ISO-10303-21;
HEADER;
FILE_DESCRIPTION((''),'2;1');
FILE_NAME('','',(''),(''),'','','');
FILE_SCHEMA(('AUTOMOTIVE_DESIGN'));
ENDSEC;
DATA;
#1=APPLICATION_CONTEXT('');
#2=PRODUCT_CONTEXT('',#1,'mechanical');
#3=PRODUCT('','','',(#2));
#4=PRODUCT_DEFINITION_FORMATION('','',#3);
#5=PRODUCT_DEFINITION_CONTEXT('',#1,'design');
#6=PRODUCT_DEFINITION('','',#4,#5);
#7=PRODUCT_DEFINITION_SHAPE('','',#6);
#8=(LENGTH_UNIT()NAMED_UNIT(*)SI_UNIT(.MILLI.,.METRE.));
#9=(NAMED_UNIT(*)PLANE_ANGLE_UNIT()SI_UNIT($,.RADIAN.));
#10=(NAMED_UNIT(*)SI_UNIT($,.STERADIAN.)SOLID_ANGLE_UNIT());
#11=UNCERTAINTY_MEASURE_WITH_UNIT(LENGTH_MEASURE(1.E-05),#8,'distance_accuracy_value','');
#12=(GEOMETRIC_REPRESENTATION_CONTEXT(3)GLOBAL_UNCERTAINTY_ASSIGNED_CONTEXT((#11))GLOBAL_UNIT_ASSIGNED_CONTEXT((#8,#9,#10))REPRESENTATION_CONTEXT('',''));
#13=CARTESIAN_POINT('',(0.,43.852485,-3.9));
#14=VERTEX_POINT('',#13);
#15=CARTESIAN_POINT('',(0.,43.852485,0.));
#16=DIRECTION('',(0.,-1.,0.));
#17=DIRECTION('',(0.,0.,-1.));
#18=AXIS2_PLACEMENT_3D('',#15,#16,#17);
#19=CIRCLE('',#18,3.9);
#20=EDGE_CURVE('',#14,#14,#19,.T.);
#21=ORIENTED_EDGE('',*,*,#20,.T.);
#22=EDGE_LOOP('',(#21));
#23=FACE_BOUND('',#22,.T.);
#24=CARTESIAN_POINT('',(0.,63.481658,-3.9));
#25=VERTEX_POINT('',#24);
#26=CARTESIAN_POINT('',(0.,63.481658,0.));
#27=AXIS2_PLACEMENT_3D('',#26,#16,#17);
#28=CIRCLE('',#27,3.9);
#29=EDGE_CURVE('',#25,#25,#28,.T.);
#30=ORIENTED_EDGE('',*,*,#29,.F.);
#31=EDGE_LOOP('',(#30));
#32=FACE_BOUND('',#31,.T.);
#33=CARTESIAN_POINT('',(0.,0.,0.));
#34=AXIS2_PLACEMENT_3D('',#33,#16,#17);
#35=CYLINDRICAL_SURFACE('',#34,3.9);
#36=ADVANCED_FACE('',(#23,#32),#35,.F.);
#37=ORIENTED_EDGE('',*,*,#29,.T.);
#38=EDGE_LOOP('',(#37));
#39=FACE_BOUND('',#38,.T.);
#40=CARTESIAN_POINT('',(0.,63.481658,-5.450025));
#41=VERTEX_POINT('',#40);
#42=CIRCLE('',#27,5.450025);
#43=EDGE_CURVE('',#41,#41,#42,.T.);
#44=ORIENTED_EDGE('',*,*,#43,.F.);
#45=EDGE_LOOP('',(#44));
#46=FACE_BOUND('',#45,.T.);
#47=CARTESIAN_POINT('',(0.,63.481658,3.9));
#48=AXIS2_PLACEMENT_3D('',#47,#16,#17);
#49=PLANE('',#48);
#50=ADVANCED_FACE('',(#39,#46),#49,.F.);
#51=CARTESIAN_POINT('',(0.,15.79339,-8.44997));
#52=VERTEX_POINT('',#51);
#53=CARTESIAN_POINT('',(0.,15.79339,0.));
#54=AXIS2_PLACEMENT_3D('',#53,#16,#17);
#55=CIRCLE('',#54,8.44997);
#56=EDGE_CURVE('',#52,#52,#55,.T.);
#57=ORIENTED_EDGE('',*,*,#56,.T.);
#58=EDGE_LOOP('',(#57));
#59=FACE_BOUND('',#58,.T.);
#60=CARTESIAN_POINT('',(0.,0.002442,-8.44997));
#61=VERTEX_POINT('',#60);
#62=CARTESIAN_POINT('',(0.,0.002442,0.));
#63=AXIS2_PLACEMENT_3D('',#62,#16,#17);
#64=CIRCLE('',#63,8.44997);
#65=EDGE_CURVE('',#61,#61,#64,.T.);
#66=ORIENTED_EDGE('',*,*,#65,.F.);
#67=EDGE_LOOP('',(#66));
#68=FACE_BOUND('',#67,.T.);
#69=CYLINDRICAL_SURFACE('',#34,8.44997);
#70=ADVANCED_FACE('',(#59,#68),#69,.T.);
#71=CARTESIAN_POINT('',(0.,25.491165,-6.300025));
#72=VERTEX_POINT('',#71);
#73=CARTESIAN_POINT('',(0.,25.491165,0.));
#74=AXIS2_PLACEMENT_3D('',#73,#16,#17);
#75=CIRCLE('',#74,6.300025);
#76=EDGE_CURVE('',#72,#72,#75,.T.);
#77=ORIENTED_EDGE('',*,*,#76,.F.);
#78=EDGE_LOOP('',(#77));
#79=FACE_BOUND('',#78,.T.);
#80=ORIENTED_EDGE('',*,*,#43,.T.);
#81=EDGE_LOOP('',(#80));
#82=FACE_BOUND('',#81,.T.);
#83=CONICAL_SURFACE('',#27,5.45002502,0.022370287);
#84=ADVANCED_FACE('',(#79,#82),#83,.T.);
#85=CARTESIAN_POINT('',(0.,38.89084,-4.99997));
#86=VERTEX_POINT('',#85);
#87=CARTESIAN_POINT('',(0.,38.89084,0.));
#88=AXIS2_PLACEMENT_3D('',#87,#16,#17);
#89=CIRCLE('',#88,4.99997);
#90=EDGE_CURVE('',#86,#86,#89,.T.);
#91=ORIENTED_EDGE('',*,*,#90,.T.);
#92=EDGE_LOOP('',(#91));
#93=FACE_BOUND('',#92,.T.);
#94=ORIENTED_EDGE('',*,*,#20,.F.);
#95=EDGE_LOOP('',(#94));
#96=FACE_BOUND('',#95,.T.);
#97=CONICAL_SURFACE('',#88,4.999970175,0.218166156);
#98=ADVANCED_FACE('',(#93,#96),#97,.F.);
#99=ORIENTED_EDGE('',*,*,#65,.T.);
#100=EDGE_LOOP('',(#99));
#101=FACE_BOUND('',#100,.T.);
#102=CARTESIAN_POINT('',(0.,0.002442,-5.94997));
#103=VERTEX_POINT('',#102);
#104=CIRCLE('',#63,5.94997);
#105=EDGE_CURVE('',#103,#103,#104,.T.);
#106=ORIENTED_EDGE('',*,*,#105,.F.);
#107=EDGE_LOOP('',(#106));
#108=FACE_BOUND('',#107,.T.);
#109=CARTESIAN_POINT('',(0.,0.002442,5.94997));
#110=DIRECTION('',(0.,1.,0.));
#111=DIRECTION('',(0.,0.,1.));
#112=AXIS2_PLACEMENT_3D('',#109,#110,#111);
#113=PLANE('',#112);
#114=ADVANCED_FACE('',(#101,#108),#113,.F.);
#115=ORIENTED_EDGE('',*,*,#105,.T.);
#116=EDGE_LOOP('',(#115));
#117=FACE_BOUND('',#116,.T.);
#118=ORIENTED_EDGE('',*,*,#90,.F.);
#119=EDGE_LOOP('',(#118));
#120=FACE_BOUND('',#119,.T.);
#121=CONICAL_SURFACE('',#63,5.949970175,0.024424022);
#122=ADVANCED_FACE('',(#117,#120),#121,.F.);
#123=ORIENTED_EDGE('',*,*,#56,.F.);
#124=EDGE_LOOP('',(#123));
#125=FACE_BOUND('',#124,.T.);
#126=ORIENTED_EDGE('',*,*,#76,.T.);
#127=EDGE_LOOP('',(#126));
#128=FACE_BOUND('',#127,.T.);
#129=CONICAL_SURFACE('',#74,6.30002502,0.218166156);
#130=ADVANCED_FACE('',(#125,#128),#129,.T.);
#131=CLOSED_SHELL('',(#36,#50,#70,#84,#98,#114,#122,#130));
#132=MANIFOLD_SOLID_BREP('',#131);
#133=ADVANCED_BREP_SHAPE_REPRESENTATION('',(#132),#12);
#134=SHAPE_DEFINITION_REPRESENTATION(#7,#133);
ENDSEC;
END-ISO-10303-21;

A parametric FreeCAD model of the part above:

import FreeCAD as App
import Part
import Sketcher
Q = App.Units.Quantity


def add_polygon(sketch, points):
    """Adds a closed chain of lines whose ends are joined by coincident constraints."""
    first, n = sketch.GeometryCount, len(points)
    for a, b in zip(points, points[1:] + points[:1]):
        sketch.addGeometry(Part.LineSegment(App.Vector(*a, 0), App.Vector(*b, 0)), False)
    for i in range(n):
        sketch.addConstraint(Sketcher.Constraint("Coincident", first + i, 2, first + (i + 1) % n, 1))

doc = App.newDocument("Part")
body = doc.addObject("PartDesign::Body", "Body")

# Sketch on YZ plane
sketch1 = body.newObject("Sketcher::SketchObject", "Sketch")
sketch1.AttachmentSupport = (doc.getObject("YZ_Plane"), [""])
sketch1.MapMode = "FlatFace"
add_polygon(sketch1, [(0, 5.9), (38.9, 5), (43.9, 3.9), (63.5, 3.9), (63.5, 5.5), (25.5, 6.3), (15.8, 8.4), (0, 8.4)])  # lines 0-7
sketch1.addConstraint([
    Sketcher.Constraint("Horizontal", 2),
    Sketcher.Constraint("Vertical", 3),
    Sketcher.Constraint("Horizontal", 6),
    Sketcher.Constraint("Vertical", 7),
    Sketcher.Constraint("Parallel", 1, 5),
    Sketcher.Constraint("Distance", 4, Q("38 mm")),
    Sketcher.Constraint("DistanceY", 7, 2, 7, 1, Q("2.5 mm")),
    Sketcher.Constraint("Angle", 1, Q("-12.5 deg")),
    Sketcher.Constraint("Distance", 0, Q("38.9 mm")),
    Sketcher.Constraint("DistanceY", -1, 1, 1, 2, Q("3.9 mm")),
    Sketcher.Constraint("DistanceY", 3, 2, 4, 2, Q("0.85 mm")),
    Sketcher.Constraint("DistanceY", 0, 2, 5, 2, Q("3.45 mm")),
    Sketcher.Constraint("Distance", 1, Q("5.082111 mm")),
    Sketcher.Constraint("DistanceX", 2, 1, 2, 2, Q("19.629173 mm")),
    Sketcher.Constraint("DistanceX", 6, 2, 6, 1, Q("15.790947 mm")),
    Sketcher.Constraint("DistanceX", -1, 1, 0, 2, Q("38.89084 mm")),
])
revolution = body.newObject("PartDesign::Revolution", "Revolution")
revolution.Profile = sketch1
revolution.ReferenceAxis = (sketch1, ["H_Axis"])
revolution.Angle = 360

doc.recompute()
